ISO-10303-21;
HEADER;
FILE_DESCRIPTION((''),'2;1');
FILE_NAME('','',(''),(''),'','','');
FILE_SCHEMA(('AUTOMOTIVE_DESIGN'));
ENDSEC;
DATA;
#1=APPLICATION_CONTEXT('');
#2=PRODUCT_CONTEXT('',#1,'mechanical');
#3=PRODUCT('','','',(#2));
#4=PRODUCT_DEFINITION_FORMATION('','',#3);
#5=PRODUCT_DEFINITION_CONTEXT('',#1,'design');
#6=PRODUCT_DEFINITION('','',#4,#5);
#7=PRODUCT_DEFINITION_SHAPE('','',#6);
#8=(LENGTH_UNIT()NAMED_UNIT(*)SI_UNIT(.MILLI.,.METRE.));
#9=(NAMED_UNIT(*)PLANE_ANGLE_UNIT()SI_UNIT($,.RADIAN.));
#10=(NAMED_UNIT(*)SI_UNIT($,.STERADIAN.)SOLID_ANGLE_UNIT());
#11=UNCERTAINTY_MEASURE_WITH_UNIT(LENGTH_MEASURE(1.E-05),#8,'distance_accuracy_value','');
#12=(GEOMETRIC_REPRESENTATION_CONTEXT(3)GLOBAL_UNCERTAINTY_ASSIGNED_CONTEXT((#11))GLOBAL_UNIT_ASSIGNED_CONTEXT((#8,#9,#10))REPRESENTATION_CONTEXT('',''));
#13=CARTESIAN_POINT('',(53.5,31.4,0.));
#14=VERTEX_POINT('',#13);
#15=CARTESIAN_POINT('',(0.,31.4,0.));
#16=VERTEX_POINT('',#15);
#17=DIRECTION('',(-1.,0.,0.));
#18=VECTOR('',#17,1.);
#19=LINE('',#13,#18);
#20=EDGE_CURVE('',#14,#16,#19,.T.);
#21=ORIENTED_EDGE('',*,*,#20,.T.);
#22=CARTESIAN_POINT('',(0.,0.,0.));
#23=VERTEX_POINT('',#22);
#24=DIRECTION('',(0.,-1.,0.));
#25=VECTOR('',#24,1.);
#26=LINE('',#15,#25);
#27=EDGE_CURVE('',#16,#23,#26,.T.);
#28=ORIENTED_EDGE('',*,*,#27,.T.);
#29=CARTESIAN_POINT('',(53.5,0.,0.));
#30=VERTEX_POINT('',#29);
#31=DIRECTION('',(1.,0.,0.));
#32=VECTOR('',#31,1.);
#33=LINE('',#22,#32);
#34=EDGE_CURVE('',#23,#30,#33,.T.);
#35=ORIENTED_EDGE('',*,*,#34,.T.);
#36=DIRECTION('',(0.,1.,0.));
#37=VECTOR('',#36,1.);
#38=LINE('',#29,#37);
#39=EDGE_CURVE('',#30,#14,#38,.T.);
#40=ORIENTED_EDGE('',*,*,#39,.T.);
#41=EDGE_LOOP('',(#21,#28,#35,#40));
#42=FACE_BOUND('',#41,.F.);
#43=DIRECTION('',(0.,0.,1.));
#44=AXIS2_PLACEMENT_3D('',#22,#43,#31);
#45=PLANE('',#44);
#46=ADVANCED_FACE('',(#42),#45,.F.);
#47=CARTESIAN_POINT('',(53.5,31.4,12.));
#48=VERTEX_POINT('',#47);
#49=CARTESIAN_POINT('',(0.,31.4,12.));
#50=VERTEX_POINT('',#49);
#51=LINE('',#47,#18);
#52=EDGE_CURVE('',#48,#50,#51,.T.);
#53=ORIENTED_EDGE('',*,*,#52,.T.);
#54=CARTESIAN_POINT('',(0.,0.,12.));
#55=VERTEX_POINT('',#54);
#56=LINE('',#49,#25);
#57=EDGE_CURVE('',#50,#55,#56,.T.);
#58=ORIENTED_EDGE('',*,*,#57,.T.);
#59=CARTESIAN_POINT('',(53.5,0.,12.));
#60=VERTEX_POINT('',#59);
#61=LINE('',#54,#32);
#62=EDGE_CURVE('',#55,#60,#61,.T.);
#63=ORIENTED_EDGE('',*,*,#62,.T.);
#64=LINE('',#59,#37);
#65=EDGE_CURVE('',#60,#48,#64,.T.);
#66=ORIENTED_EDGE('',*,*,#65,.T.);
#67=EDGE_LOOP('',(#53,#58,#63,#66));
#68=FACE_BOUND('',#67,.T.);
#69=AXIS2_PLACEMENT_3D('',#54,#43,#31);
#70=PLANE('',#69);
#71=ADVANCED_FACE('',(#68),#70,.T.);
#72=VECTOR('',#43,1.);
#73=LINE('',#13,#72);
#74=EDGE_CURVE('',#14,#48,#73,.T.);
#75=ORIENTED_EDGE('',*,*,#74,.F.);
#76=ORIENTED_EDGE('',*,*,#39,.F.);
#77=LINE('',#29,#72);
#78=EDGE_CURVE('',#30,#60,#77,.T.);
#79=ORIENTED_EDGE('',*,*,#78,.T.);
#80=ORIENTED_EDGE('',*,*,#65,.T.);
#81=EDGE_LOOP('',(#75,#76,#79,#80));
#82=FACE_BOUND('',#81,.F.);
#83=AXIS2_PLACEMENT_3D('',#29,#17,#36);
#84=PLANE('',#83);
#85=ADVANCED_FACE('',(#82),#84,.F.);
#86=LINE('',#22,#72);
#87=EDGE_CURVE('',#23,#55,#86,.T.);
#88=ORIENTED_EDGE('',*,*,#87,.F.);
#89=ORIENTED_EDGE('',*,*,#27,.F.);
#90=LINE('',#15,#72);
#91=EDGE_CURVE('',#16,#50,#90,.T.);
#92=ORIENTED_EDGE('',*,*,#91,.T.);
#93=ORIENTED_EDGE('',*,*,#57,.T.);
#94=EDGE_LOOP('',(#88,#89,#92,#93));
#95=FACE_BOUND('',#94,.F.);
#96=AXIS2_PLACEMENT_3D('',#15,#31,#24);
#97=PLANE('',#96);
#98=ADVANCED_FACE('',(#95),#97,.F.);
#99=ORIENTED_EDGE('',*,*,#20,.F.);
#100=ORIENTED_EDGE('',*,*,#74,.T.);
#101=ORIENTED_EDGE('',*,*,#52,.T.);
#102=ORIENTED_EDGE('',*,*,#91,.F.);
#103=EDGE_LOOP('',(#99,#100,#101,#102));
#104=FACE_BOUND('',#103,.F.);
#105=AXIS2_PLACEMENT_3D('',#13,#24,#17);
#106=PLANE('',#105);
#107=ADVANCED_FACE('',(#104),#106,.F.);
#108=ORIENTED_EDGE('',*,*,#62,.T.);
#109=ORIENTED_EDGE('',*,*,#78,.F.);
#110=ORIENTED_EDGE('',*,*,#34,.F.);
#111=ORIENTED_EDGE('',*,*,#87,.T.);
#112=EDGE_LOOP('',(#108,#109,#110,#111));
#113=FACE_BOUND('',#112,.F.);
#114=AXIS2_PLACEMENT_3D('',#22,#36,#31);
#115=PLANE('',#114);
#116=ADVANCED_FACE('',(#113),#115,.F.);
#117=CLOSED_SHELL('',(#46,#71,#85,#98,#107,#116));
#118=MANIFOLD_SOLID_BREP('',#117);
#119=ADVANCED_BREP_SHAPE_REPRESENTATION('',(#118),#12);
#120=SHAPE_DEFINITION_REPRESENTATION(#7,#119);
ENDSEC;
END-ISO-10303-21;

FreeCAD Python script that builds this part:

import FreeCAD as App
import Part
import Sketcher
from FreeCAD import Vector


def add_polygon(sketch, points):
    """Adds a closed chain of lines whose ends are joined by coincident constraints."""
    first, n = sketch.GeometryCount, len(points)
    for a, b in zip(points, points[1:] + points[:1]):
        sketch.addGeometry(Part.LineSegment(App.Vector(*a, 0), App.Vector(*b, 0)), False)
    for i in range(n):
        sketch.addConstraint(Sketcher.Constraint("Coincident", first + i, 2, first + (i + 1) % n, 1))

doc = App.newDocument("Part")
params = doc.addObject("Spreadsheet::Sheet", "Params")
for row, (alias, value) in enumerate([
    ("sketch1_width", "53.5 mm"),
    ("sketch1_height", "31.4 mm"),
    ("pad1_length", "12 mm"),
], start=1):
    params.set(f"A{row}", alias)
    params.set(f"B{row}", "=" + value)
    params.setAlias(f"B{row}", alias)

body = doc.addObject("PartDesign::Body", "Body")

# Sketch on XY plane
sketch1 = doc.addObject("Sketcher::SketchObject", "Sketch")
body.addObject(sketch1)
sketch1.AttachmentSupport = (doc.XY_Plane, [""])
sketch1.MapMode = "FlatFace"
add_polygon(sketch1, [(0, 31), (0, 0), (54, 0), (54, 31)])  # lines 0-3
sketch1.addConstraint([
    Sketcher.Constraint("Vertical", 0),
    Sketcher.Constraint("Horizontal", 1),
    Sketcher.Constraint("Vertical", 2),
    Sketcher.Constraint("Horizontal", 3),
    Sketcher.Constraint("Coincident", 0, 2, -1, 1),
    Sketcher.Constraint("DistanceX", 1, 1, 1, 2, 53.5),
    Sketcher.Constraint("DistanceY", 0, 2, 0, 1, 31.4),
])
sketch1.setExpression("Constraints[9]", "Params.sketch1_width")
sketch1.setExpression("Constraints[10]", "Params.sketch1_height")
pad1 = doc.addObject("PartDesign::Pad", "Pad")
body.addObject(pad1)
pad1.Profile = sketch1
pad1.setExpression("Length", "Params.pad1_length")

doc.recompute()
